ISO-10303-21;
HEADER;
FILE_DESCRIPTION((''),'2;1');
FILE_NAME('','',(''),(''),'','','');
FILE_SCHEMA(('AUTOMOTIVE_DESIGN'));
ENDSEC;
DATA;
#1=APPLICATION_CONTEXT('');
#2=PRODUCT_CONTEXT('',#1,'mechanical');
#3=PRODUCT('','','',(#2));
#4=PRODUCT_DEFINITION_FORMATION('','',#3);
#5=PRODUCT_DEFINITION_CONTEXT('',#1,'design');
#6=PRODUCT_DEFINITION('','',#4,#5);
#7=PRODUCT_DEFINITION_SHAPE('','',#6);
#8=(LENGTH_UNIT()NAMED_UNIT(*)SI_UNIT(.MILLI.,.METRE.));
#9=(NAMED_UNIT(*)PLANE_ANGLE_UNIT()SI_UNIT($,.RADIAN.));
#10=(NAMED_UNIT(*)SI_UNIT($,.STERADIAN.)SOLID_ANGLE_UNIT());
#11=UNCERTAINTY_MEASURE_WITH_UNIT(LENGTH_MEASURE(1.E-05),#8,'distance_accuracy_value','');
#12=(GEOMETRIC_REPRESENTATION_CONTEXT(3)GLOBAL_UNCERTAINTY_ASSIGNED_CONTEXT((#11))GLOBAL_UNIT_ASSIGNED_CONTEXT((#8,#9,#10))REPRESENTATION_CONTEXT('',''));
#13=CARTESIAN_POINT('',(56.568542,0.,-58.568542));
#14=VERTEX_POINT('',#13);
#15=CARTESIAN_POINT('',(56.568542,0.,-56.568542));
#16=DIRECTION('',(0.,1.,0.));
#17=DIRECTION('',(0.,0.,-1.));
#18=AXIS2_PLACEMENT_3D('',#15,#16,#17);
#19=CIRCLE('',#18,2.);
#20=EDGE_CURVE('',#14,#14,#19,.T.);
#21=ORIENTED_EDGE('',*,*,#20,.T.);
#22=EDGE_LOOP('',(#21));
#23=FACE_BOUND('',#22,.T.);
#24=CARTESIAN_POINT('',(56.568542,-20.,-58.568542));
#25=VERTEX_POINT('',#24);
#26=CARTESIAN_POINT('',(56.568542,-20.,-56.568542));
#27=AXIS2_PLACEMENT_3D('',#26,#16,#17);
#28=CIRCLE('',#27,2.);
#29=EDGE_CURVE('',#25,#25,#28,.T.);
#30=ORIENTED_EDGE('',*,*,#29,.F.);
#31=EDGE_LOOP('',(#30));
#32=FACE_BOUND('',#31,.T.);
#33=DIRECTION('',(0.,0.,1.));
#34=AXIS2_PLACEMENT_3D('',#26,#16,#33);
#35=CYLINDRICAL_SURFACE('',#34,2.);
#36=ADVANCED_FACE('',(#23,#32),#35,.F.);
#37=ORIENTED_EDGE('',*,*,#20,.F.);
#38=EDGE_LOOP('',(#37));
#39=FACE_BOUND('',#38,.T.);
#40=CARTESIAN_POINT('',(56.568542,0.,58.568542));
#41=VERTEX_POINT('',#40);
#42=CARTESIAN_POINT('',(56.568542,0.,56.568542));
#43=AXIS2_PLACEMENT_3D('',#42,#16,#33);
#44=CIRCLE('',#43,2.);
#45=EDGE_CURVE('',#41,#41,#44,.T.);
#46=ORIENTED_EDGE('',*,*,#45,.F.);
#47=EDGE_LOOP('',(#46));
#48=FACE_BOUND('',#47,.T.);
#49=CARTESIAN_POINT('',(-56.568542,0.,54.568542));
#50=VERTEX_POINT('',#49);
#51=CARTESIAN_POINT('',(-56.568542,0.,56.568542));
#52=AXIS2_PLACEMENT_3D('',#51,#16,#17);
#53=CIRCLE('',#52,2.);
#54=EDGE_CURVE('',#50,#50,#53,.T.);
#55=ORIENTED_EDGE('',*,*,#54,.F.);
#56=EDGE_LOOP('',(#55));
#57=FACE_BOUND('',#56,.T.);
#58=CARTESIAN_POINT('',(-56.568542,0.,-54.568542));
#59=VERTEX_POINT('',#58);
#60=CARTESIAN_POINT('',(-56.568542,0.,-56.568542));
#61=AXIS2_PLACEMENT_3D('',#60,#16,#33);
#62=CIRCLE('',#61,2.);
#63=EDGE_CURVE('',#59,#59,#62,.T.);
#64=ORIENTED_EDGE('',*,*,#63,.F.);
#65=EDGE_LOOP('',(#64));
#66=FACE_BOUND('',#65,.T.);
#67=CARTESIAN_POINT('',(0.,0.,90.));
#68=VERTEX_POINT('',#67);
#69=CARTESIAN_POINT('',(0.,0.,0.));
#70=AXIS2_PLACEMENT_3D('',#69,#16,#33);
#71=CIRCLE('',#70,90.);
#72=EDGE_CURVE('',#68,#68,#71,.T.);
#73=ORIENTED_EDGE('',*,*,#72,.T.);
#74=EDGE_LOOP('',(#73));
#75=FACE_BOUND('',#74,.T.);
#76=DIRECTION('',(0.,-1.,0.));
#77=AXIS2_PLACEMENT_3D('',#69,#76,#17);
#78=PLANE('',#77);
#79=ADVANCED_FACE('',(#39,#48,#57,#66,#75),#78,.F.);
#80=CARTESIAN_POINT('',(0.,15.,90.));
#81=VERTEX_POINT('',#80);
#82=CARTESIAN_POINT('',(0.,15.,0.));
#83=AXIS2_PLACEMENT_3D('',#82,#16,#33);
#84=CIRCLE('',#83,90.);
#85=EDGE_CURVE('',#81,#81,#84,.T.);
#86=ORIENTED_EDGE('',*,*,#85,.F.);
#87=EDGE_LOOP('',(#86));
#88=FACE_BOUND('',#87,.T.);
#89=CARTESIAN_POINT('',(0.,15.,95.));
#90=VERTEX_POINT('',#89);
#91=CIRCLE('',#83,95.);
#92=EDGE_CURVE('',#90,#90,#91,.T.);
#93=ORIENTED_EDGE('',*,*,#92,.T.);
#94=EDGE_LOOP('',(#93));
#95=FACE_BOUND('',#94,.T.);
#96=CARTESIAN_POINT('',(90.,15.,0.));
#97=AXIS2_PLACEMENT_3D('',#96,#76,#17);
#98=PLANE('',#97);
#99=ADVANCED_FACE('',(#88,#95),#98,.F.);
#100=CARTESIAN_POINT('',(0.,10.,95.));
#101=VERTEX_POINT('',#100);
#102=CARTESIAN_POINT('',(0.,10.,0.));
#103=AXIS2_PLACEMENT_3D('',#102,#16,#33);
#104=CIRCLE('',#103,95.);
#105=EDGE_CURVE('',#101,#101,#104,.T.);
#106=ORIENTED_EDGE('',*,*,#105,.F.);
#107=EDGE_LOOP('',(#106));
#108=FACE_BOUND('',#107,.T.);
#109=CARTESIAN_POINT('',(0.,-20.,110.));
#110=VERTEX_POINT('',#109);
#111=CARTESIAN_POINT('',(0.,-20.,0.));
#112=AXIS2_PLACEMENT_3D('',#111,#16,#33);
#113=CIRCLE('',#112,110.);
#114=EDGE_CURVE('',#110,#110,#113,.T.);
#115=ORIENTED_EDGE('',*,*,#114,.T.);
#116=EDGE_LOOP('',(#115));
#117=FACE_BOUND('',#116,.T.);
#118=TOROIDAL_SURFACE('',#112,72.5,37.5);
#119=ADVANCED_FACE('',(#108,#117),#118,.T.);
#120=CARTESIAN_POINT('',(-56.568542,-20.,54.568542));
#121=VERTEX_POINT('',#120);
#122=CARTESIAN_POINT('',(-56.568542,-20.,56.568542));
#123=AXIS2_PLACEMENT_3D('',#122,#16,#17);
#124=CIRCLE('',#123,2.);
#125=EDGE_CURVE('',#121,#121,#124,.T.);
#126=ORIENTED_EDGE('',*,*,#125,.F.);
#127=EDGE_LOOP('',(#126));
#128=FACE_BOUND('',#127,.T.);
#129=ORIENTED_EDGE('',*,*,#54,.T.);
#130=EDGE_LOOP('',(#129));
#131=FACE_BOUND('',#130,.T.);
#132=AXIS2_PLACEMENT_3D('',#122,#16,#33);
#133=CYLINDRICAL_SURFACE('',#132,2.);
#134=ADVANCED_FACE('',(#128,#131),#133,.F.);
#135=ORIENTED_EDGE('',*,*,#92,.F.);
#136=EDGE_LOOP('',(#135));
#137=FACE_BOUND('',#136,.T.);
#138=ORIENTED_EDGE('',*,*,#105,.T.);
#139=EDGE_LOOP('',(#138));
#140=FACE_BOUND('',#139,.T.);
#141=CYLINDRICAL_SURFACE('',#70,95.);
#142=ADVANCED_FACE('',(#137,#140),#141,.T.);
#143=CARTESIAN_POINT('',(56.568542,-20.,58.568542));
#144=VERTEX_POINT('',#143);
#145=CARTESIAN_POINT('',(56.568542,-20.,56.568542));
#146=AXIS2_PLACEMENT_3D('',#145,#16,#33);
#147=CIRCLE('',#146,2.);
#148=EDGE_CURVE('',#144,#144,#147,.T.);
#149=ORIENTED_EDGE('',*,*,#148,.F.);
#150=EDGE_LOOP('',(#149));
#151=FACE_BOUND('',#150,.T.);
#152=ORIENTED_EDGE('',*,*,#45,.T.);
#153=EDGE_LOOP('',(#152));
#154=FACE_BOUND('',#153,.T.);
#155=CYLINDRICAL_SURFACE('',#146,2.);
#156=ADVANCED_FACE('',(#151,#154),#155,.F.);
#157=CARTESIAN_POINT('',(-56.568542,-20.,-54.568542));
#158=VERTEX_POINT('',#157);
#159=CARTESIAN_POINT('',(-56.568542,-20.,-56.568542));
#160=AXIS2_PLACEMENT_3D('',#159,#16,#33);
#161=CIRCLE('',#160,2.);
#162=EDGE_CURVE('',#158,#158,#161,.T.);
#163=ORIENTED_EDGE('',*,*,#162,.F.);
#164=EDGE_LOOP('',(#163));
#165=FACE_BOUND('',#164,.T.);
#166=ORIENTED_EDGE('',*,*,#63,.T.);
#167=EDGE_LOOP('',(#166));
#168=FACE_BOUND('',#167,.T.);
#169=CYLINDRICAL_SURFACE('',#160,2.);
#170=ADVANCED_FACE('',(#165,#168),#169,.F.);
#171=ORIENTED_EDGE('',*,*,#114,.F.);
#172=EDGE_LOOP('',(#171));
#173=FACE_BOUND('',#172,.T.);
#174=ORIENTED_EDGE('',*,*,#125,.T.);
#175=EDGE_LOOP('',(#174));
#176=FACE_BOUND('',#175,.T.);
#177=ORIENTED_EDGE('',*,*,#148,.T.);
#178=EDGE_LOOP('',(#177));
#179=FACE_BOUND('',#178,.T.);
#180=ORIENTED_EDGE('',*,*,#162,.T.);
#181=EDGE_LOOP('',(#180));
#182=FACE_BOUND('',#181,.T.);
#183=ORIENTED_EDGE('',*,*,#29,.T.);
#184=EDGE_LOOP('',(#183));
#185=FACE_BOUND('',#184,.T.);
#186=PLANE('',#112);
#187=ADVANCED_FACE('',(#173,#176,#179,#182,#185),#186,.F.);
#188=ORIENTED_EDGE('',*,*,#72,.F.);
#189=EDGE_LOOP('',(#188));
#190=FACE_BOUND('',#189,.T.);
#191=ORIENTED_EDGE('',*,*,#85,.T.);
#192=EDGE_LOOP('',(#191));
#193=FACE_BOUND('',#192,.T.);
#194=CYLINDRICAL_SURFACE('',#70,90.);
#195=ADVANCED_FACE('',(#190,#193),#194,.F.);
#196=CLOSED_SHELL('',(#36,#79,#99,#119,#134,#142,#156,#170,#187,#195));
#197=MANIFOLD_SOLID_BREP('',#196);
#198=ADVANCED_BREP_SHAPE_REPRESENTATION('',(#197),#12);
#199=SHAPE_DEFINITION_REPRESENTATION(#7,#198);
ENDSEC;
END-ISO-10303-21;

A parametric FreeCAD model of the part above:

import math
import FreeCAD as App
import Part
import Sketcher

V = App.Vector
Q = App.Units.Quantity

doc = App.newDocument("Part")
body = doc.addObject("PartDesign::Body", "Body")

# Sketch on XY plane
sketch1 = body.newObject("Sketcher::SketchObject", "Sketch")
sketch1.AttachmentSupport = (doc.getObject("XY_Plane"), [""])
sketch1.MapMode = "FlatFace"
sketch1.addGeometry(Part.LineSegment(V(90, 15, 0), V(90, 0, 0)), False)
sketch1.addGeometry(Part.LineSegment(V(90, 0, 0), V(0, 0, 0)), False)
sketch1.addGeometry(Part.LineSegment(V(0, 0, 0), V(0, -20, 0)), False)
sketch1.addGeometry(Part.LineSegment(V(0, -20, 0), V(110, -20, 0)), False)
sketch1.addGeometry(Part.ArcOfCircle(Part.Circle(V(72.5, -20, 0), V(0, 0, 1), 37.5), math.radians(0), math.radians(53.130102)), False)
sketch1.addGeometry(Part.LineSegment(V(95, 10, 0), V(95, 15, 0)), False)
sketch1.addGeometry(Part.LineSegment(V(95, 15, 0), V(90, 15, 0)), False)
sketch1.addConstraint(Sketcher.Constraint("Coincident", 0, 2, 1, 1))
sketch1.addConstraint(Sketcher.Constraint("Coincident", 1, 2, 2, 1))
sketch1.addConstraint(Sketcher.Constraint("Coincident", 2, 2, 3, 1))
sketch1.addConstraint(Sketcher.Constraint("Coincident", 3, 2, 4, 1))
sketch1.addConstraint(Sketcher.Constraint("Coincident", 4, 2, 5, 1))
sketch1.addConstraint(Sketcher.Constraint("Coincident", 5, 2, 6, 1))
sketch1.addConstraint(Sketcher.Constraint("Coincident", 6, 2, 0, 1))
sketch1.addConstraint(Sketcher.Constraint("Vertical", 0))
sketch1.addConstraint(Sketcher.Constraint("Horizontal", 1))
sketch1.addConstraint(Sketcher.Constraint("Vertical", 2))
sketch1.addConstraint(Sketcher.Constraint("Horizontal", 3))
sketch1.addConstraint(Sketcher.Constraint("Vertical", 5))
sketch1.addConstraint(Sketcher.Constraint("Horizontal", 6))
sketch1.addConstraint(Sketcher.Constraint("Coincident", 1, 2, -1, 1))
sketch1.addConstraint(Sketcher.Constraint("Horizontal", 4, 3, 2, 2))
sketch1.addConstraint(Sketcher.Constraint("Equal", 6, 5))
sketch1.addConstraint(Sketcher.Constraint("Radius", 4, Q("37.5 mm")))
sketch1.addConstraint(Sketcher.Constraint("DistanceX", 1, 2, 1, 1, Q("90 mm")))
sketch1.addConstraint(Sketcher.Constraint("DistanceX", 3, 1, 3, 2, Q("110 mm")))
sketch1.addConstraint(Sketcher.Constraint("DistanceX", 6, 2, 6, 1, Q("5 mm")))
sketch1.addConstraint(Sketcher.Constraint("DistanceY", 0, 2, 0, 1, Q("15 mm")))
revolution = body.newObject("PartDesign::Revolution", "Revolution")
revolution.Profile = sketch1
revolution.ReferenceAxis = (sketch1, ["V_Axis"])
revolution.Angle = 360

# Sketch on XZ plane
sketch2 = body.newObject("Sketcher::SketchObject", "Sketch001")
sketch2.AttachmentSupport = (doc.getObject("XZ_Plane"), [""])
sketch2.MapMode = "FlatFace"
sketch2.addGeometry(Part.Circle(V(-56.568542, -56.568542, 0), V(0, 0, 1), 2), False)
sketch2.addGeometry(Part.Circle(V(-56.568542, 56.568542, 0), V(0, 0, 1), 2), False)
sketch2.addGeometry(Part.Circle(V(56.568542, -56.568542, 0), V(0, 0, 1), 2), False)
sketch2.addGeometry(Part.Circle(V(56.568542, 56.568542, 0), V(0, 0, 1), 2), False)
sketch2.addConstraint(Sketcher.Constraint("Equal", 0, 1))
sketch2.addConstraint(Sketcher.Constraint("Equal", 1, 2))
sketch2.addConstraint(Sketcher.Constraint("Equal", 2, 3))
sketch2.addConstraint(Sketcher.Constraint("Symmetric", 1, 3, 2, 3, -1, 1))
sketch2.addConstraint(Sketcher.Constraint("Symmetric", 0, 3, 3, 3, -1, 1))
sketch2.addConstraint(Sketcher.Constraint("Symmetric", 0, 3, 2, 3, -2))
sketch2.addConstraint(Sketcher.Constraint("Diameter", 0, Q("4 mm")))
sketch2.addConstraint(Sketcher.Constraint("DistanceX", 0, 3, -1, 1, Q("56.568542 mm")))
sketch2.addConstraint(Sketcher.Constraint("DistanceY", 0, 3, -1, 1, Q("56.568542 mm")))
pocket1 = body.newObject("PartDesign::Pocket", "Pocket")
pocket1.Profile = sketch2
pocket1.Type = "ThroughAll"
pocket1.Reversed = True

doc.recompute()
